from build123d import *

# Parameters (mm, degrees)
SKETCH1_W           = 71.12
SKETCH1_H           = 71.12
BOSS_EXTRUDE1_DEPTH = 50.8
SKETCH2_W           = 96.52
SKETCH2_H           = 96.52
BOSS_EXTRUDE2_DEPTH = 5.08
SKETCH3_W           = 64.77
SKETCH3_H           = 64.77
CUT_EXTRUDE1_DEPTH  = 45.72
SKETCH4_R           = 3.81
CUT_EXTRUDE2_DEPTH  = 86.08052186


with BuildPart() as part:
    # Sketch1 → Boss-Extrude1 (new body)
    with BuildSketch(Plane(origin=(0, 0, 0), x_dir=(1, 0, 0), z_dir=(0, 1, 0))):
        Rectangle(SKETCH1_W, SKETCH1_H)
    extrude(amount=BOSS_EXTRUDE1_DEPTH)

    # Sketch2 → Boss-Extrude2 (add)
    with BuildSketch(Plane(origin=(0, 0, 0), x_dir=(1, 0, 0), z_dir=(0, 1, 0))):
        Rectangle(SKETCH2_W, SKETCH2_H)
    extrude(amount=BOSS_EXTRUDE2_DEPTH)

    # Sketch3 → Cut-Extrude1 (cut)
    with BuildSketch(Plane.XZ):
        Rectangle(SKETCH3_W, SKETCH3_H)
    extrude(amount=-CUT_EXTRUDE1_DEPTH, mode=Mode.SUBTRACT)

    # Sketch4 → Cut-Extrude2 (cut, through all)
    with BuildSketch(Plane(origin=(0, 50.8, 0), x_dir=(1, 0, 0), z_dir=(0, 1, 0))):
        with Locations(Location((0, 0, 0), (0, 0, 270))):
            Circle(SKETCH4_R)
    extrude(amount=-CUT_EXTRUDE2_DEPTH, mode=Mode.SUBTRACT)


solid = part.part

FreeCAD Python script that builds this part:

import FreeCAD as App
import Part
import Sketcher
Q = App.Units.Quantity

doc = App.newDocument("Part")
params = doc.addObject("Spreadsheet::Sheet", "Params")
for row, (alias, value) in enumerate([
    ("sketch1_width", "2.8 in"),
    ("pad1_length", "2 in"),
    ("sketch2_width", "3.8 in"),
    ("pad2_length", "0.2 in"),
    ("sketch3_width", "2.55 in"),
    ("pocket1_length", "1.8 in"),
    ("sketch4_diameter", "0.3 in"),
], start=1):
    params.set(f"A{row}", alias)
    params.set(f"B{row}", "=" + value)
    params.setAlias(f"B{row}", alias)

body = doc.addObject("PartDesign::Body", "Body")

# Sketch on XZ plane
sketch1 = doc.addObject("Sketcher::SketchObject", "Sketch")
body.addObject(sketch1)
sketch1.AttachmentSupport = (doc.XZ_Plane, [""])
sketch1.MapMode = "FlatFace"
sketch1.addGeometry([
    Part.LineSegment(App.Vector(-36, -36, 0), App.Vector(-36, 36, 0)),
    Part.LineSegment(App.Vector(-36, 36, 0), App.Vector(36, 36, 0)),
    Part.LineSegment(App.Vector(36, 36, 0), App.Vector(36, -36, 0)),
    Part.LineSegment(App.Vector(36, -36, 0), App.Vector(-36, -36, 0)),
], False)
sketch1.addConstraint([
    Sketcher.Constraint("Coincident", 0, 2, 1, 1),
    Sketcher.Constraint("Coincident", 1, 2, 2, 1),
    Sketcher.Constraint("Coincident", 2, 2, 3, 1),
    Sketcher.Constraint("Coincident", 3, 2, 0, 1),
    Sketcher.Constraint("Vertical", 0),
    Sketcher.Constraint("Horizontal", 1),
    Sketcher.Constraint("Vertical", 2),
    Sketcher.Constraint("Horizontal", 3),
    Sketcher.Constraint("Symmetric", 0, 2, 2, 2, -1, 1),
    Sketcher.Constraint("Equal", 3, 0),
    Sketcher.Constraint("DistanceX", 1, 1, 1, 2, Q("2.8 in")),
])
sketch1.setExpression("Constraints[10]", "Params.sketch1_width")
pad1 = doc.addObject("PartDesign::Pad", "Pad")
body.addObject(pad1)
pad1.Profile = sketch1
pad1.setExpression("Length", "Params.pad1_length")
pad1.Reversed = True

# Sketch on XZ plane
sketch2 = doc.addObject("Sketcher::SketchObject", "Sketch001")
body.addObject(sketch2)
sketch2.AttachmentSupport = (doc.XZ_Plane, [""])
sketch2.MapMode = "FlatFace"
sketch2.addGeometry([
    Part.LineSegment(App.Vector(-48, -48, 0), App.Vector(-48, 48, 0)),
    Part.LineSegment(App.Vector(-48, 48, 0), App.Vector(48, 48, 0)),
    Part.LineSegment(App.Vector(48, 48, 0), App.Vector(48, -48, 0)),
    Part.LineSegment(App.Vector(48, -48, 0), App.Vector(-48, -48, 0)),
], False)
sketch2.addConstraint([
    Sketcher.Constraint("Coincident", 0, 2, 1, 1),
    Sketcher.Constraint("Coincident", 1, 2, 2, 1),
    Sketcher.Constraint("Coincident", 2, 2, 3, 1),
    Sketcher.Constraint("Coincident", 3, 2, 0, 1),
    Sketcher.Constraint("Vertical", 0),
    Sketcher.Constraint("Horizontal", 1),
    Sketcher.Constraint("Vertical", 2),
    Sketcher.Constraint("Horizontal", 3),
    Sketcher.Constraint("Symmetric", 0, 2, 2, 2, -1, 1),
    Sketcher.Constraint("Equal", 3, 0),
    Sketcher.Constraint("DistanceX", 1, 1, 1, 2, Q("3.8 in")),
])
sketch2.setExpression("Constraints[10]", "Params.sketch2_width")
pad2 = doc.addObject("PartDesign::Pad", "Pad001")
body.addObject(pad2)
pad2.Profile = sketch2
pad2.setExpression("Length", "Params.pad2_length")
pad2.Reversed = True

# Sketch on XZ plane
sketch3 = doc.addObject("Sketcher::SketchObject", "Sketch002")
body.addObject(sketch3)
sketch3.AttachmentSupport = (doc.XZ_Plane, [""])
sketch3.MapMode = "FlatFace"
sketch3.addGeometry([
    Part.LineSegment(App.Vector(-32, 32, 0), App.Vector(-32, -32, 0)),
    Part.LineSegment(App.Vector(-32, -32, 0), App.Vector(32, -32, 0)),
    Part.LineSegment(App.Vector(32, -32, 0), App.Vector(32, 32, 0)),
    Part.LineSegment(App.Vector(32, 32, 0), App.Vector(-32, 32, 0)),
], False)
sketch3.addConstraint([
    Sketcher.Constraint("Coincident", 0, 2, 1, 1),
    Sketcher.Constraint("Coincident", 1, 2, 2, 1),
    Sketcher.Constraint("Coincident", 2, 2, 3, 1),
    Sketcher.Constraint("Coincident", 3, 2, 0, 1),
    Sketcher.Constraint("Vertical", 0),
    Sketcher.Constraint("Horizontal", 1),
    Sketcher.Constraint("Vertical", 2),
    Sketcher.Constraint("Horizontal", 3),
    Sketcher.Constraint("Symmetric", 0, 2, 2, 2, -1, 1),
    Sketcher.Constraint("Equal", 3, 0),
    Sketcher.Constraint("DistanceX", 1, 1, 1, 2, Q("2.55 in")),
])
sketch3.setExpression("Constraints[10]", "Params.sketch3_width")
pocket1 = doc.addObject("PartDesign::Pocket", "Pocket")
body.addObject(pocket1)
pocket1.Profile = sketch3
pocket1.setExpression("Length", "Params.pocket1_length")

# Sketch on XZ plane
sketch4 = doc.addObject("Sketcher::SketchObject", "Sketch003")
body.addObject(sketch4)
sketch4.AttachmentSupport = (doc.XZ_Plane, [""])
sketch4.MapMode = "FlatFace"
sketch4.AttachmentOffset = App.Placement(App.Vector(0, 0, -2 * 25.4), App.Rotation())
sketch4.addGeometry(Part.Circle(App.Vector(0, 0, 0), App.Vector(0, 0, 1), 3.8), False)
sketch4.addConstraint([
    Sketcher.Constraint("Coincident", 0, 3, -1, 1),
    Sketcher.Constraint("Diameter", 0, Q("0.3 in")),
])
sketch4.setExpression("Constraints[1]", "Params.sketch4_diameter")
pocket2 = doc.addObject("PartDesign::Pocket", "Pocket001")
body.addObject(pocket2)
pocket2.Profile = sketch4
pocket2.Type = "ThroughAll"
pocket2.Reversed = True

doc.recompute()
